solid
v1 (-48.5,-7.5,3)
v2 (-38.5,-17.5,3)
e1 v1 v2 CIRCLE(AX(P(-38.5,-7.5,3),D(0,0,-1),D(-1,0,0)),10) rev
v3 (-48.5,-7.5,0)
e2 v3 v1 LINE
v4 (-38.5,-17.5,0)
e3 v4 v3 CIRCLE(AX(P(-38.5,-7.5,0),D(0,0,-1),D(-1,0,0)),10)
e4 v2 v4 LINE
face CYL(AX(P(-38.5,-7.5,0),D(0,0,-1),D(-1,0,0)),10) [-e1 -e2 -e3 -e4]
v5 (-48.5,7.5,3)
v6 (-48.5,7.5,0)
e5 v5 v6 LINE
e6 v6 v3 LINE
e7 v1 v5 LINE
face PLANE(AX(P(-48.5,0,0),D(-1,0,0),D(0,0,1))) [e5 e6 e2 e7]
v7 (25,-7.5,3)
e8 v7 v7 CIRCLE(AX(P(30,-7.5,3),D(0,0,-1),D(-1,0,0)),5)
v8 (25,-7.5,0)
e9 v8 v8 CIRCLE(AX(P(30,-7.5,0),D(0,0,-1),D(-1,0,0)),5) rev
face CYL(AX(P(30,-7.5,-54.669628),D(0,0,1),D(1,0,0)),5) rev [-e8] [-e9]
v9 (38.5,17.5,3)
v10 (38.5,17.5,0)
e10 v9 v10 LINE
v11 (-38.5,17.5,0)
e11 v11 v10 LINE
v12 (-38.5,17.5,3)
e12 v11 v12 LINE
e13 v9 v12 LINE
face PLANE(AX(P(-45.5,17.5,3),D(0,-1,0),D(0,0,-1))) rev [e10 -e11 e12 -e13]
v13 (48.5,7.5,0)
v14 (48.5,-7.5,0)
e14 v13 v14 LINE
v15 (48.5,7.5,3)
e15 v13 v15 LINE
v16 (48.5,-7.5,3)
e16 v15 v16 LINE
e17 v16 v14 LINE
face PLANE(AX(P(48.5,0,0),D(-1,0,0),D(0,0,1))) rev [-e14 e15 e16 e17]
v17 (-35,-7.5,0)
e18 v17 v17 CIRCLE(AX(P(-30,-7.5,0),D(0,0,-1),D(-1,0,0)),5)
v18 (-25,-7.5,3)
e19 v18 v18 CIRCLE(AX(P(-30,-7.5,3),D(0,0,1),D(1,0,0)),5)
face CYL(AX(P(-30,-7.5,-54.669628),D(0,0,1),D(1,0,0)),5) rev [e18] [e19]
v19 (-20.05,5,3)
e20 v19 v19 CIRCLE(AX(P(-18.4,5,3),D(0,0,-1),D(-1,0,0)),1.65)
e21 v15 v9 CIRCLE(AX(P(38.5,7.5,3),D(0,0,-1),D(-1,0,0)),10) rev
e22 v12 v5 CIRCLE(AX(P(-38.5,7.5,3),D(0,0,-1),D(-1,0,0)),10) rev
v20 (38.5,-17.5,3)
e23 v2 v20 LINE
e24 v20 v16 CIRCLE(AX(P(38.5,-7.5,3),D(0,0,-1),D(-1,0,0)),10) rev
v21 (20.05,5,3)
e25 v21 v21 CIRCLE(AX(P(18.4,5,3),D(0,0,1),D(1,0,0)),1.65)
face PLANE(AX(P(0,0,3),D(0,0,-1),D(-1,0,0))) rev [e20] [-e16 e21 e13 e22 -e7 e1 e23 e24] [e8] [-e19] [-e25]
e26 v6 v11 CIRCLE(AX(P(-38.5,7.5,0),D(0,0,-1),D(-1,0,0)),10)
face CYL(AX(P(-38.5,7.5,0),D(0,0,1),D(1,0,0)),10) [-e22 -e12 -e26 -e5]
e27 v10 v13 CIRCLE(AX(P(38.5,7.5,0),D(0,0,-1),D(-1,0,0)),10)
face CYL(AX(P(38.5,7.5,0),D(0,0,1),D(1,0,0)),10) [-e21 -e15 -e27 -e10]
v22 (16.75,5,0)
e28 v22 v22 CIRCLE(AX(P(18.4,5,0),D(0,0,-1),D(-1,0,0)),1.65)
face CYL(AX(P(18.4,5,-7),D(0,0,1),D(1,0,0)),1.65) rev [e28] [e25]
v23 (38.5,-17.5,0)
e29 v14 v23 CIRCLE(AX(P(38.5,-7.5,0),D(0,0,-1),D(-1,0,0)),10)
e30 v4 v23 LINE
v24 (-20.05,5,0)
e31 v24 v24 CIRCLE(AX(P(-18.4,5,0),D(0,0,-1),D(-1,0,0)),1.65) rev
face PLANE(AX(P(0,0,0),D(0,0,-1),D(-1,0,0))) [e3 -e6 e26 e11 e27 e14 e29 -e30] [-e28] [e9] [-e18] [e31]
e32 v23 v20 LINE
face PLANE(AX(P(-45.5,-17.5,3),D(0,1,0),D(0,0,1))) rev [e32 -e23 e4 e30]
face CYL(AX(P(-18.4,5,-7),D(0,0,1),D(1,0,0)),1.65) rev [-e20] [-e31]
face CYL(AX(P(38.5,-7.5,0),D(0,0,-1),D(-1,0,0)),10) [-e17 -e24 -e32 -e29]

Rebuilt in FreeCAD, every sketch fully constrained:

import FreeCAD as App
import Part
import Sketcher

V = App.Vector


def edges_at(feature, points):
    """Names of the edges that pass closest to the given points."""
    edges = feature.Shape.Edges
    near = lambda p: min(range(len(edges)), key=lambda i: edges[i].distToShape(Part.Vertex(*p))[0])
    return sorted({f"Edge{near(p) + 1}" for p in points})

doc = App.newDocument("Part")
body = doc.addObject("PartDesign::Body", "Body")

sketch1 = body.newObject("Sketcher::SketchObject", "Sketch")
sketch1.AttachmentSupport = (doc.getObject("XY_Plane"), [""])
sketch1.MapMode = "FlatFace"
sketch1.addGeometry(Part.LineSegment(V(-46, 18, 0), V(-46, -18, 0)), False)
sketch1.addGeometry(Part.LineSegment(V(-46, -18, 0), V(46, -18, 0)), False)
sketch1.addGeometry(Part.LineSegment(V(46, -18, 0), V(46, 18, 0)), False)
sketch1.addGeometry(Part.LineSegment(V(46, 18, 0), V(-46, 18, 0)), False)
sketch1.addConstraint(Sketcher.Constraint("Coincident", 0, 2, 1, 1))
sketch1.addConstraint(Sketcher.Constraint("Coincident", 1, 2, 2, 1))
sketch1.addConstraint(Sketcher.Constraint("Coincident", 2, 2, 3, 1))
sketch1.addConstraint(Sketcher.Constraint("Coincident", 3, 2, 0, 1))
sketch1.addConstraint(Sketcher.Constraint("Vertical", 0))
sketch1.addConstraint(Sketcher.Constraint("Horizontal", 1))
sketch1.addConstraint(Sketcher.Constraint("Vertical", 2))
sketch1.addConstraint(Sketcher.Constraint("Horizontal", 3))
sketch1.addConstraint(Sketcher.Constraint("Symmetric", 0, 2, 2, 2, -1, 1))
sketch1.addConstraint(Sketcher.Constraint("DistanceX", 1, 1, 1, 2, 91.0))
sketch1.addConstraint(Sketcher.Constraint("DistanceY", 0, 2, 0, 1, 35.0))
pad1 = body.newObject("PartDesign::Pad", "Pad")
pad1.Profile = sketch1
pad1.Length = 3

sketch2 = body.newObject("Sketcher::SketchObject", "Sketch001")
sketch2.AttachmentSupport = (doc.getObject("XY_Plane"), [""])
sketch2.MapMode = "FlatFace"
sketch2.addGeometry(Part.Circle(V(22.5, 5, 0), V(0, 0, 1), 1.2), False)
sketch2.addGeometry(Part.Circle(V(-22.5, 5, 0), V(0, 0, 1), 1.2), False)
sketch2.addConstraint(Sketcher.Constraint("Equal", 0, 1))
sketch2.addConstraint(Sketcher.Constraint("Symmetric", 0, 3, 1, 3, -2))
sketch2.addConstraint(Sketcher.Constraint("Diameter", 0, 2.5))
sketch2.addConstraint(Sketcher.Constraint("DistanceY", -1, 1, 0, 3, 5.0))
sketch2.addConstraint(Sketcher.Constraint("DistanceX", 1, 3, 0, 3, 45.0))
pocket1 = body.newObject("PartDesign::Pocket", "Pocket")
pocket1.Profile = sketch2
pocket1.Length = 3
pocket1.Reversed = True

sketch3 = body.newObject("Sketcher::SketchObject", "Sketch002")
sketch3.AttachmentSupport = (doc.getObject("XY_Plane"), [""])
sketch3.MapMode = "FlatFace"
sketch3.addGeometry(Part.LineSegment(V(45.5, 17.5, 0), V(45.5, 14.5, 0)), False)
sketch3.addGeometry(Part.LineSegment(V(45.5, 14.5, 0), V(-45.5, 14.5, 0)), False)
sketch3.addGeometry(Part.LineSegment(V(-45.5, 14.5, 0), V(-45.5, 17.5, 0)), False)
sketch3.addGeometry(Part.LineSegment(V(-45.5, 17.5, 0), V(45.5, 17.5, 0)), False)
sketch3.addConstraint(Sketcher.Constraint("Coincident", 0, 2, 1, 1))
sketch3.addConstraint(Sketcher.Constraint("Coincident", 1, 2, 2, 1))
sketch3.addConstraint(Sketcher.Constraint("Coincident", 2, 2, 3, 1))
sketch3.addConstraint(Sketcher.Constraint("Coincident", 3, 2, 0, 1))
sketch3.addConstraint(Sketcher.Constraint("Vertical", 0))
sketch3.addConstraint(Sketcher.Constraint("Horizontal", 1))
sketch3.addConstraint(Sketcher.Constraint("Vertical", 2))
sketch3.addConstraint(Sketcher.Constraint("Horizontal", 3))
sketch3.addConstraint(Sketcher.Constraint("DistanceX", 1, 2, 1, 1, 91.0))
sketch3.addConstraint(Sketcher.Constraint("DistanceY", 0, 2, 0, 1, 3.0))
sketch3.addConstraint(Sketcher.Constraint("DistanceX", -1, 1, 0, 2, 45.5))
sketch3.addConstraint(Sketcher.Constraint("DistanceY", -1, 1, 0, 2, 14.5))
pad2 = body.newObject("PartDesign::Pad", "Pad001")
pad2.Profile = sketch3
pad2.Length = 12
pad2.Reversed = True

sketch4 = body.newObject("Sketcher::SketchObject", "Sketch003")
sketch4.AttachmentSupport = (doc.getObject("YZ_Plane"), [""])
sketch4.MapMode = "FlatFace"
sketch4.AttachmentOffset = App.Placement(V(0, 0, 45.5), App.Rotation())
sketch4.addGeometry(Part.LineSegment(V(18, -24, 0), V(18, 3, 0)), False)
sketch4.addGeometry(Part.LineSegment(V(18, 3, 0), V(-18, 3, 0)), False)
sketch4.addGeometry(Part.LineSegment(V(-18, 3, 0), V(-18, -24, 0)), False)
sketch4.addGeometry(Part.LineSegment(V(-18, -24, 0), V(18, -24, 0)), False)
sketch4.addConstraint(Sketcher.Constraint("Coincident", 0, 2, 1, 1))
sketch4.addConstraint(Sketcher.Constraint("Coincident", 1, 2, 2, 1))
sketch4.addConstraint(Sketcher.Constraint("Coincident", 2, 2, 3, 1))
sketch4.addConstraint(Sketcher.Constraint("Coincident", 3, 2, 0, 1))
sketch4.addConstraint(Sketcher.Constraint("Vertical", 0))
sketch4.addConstraint(Sketcher.Constraint("Horizontal", 1))
sketch4.addConstraint(Sketcher.Constraint("Vertical", 2))
sketch4.addConstraint(Sketcher.Constraint("Horizontal", 3))
sketch4.addConstraint(Sketcher.Constraint("DistanceX", 1, 2, 1, 1, 35.0))
sketch4.addConstraint(Sketcher.Constraint("DistanceY", 0, 1, 0, 2, 27.0))
sketch4.addConstraint(Sketcher.Constraint("DistanceY", -1, 1, 0, 2, 3.0))
sketch4.addConstraint(Sketcher.Constraint("DistanceX", -1, 1, 0, 2, 17.5))
pad3 = body.newObject("PartDesign::Pad", "Pad002")
pad3.Profile = sketch4
pad3.Length = 3

sketch5 = body.newObject("Sketcher::SketchObject", "Sketch004")
sketch5.AttachmentSupport = (doc.getObject("YZ_Plane"), [""])
sketch5.MapMode = "FlatFace"
sketch5.AttachmentOffset = App.Placement(V(0, 0, 45.5), App.Rotation())
sketch5.addGeometry(Part.Circle(V(9.5, -20, 0), V(0, 0, 1), 1.2), False)
sketch5.addGeometry(Part.Circle(V(-15.5, -20, 0), V(0, 0, 1), 1.2), False)
sketch5.addConstraint(Sketcher.Constraint("Equal", 0, 1))
sketch5.addConstraint(Sketcher.Constraint("Horizontal", 0, 3, 1, 3))
sketch5.addConstraint(Sketcher.Constraint("Diameter", 0, 2.5))
sketch5.addConstraint(Sketcher.Constraint("DistanceY", 0, 3, -1, 1, 20.0))
sketch5.addConstraint(Sketcher.Constraint("DistanceX", 1, 3, 0, 3, 25.0))
sketch5.addConstraint(Sketcher.Constraint("DistanceX", -1, 1, 0, 3, 9.5))
pocket2 = body.newObject("PartDesign::Pocket", "Pocket001")
pocket2.Profile = sketch5
pocket2.Length = 3
pocket2.Reversed = True

sketch6 = body.newObject("Sketcher::SketchObject", "Sketch005")
sketch6.AttachmentSupport = (doc.getObject("YZ_Plane"), [""])
sketch6.MapMode = "FlatFace"
sketch6.AttachmentOffset = App.Placement(V(0, 0, -45.5), App.Rotation())
sketch6.addGeometry(Part.LineSegment(V(18, -24, 0), V(-18, -24, 0)), False)
sketch6.addGeometry(Part.LineSegment(V(-18, -24, 0), V(-18, 3, 0)), False)
sketch6.addGeometry(Part.LineSegment(V(-18, 3, 0), V(18, 3, 0)), False)
sketch6.addGeometry(Part.LineSegment(V(18, 3, 0), V(18, -24, 0)), False)
sketch6.addConstraint(Sketcher.Constraint("Coincident", 0, 2, 1, 1))
sketch6.addConstraint(Sketcher.Constraint("Coincident", 1, 2, 2, 1))
sketch6.addConstraint(Sketcher.Constraint("Coincident", 2, 2, 3, 1))
sketch6.addConstraint(Sketcher.Constraint("Coincident", 3, 2, 0, 1))
sketch6.addConstraint(Sketcher.Constraint("Horizontal", 0))
sketch6.addConstraint(Sketcher.Constraint("Vertical", 1))
sketch6.addConstraint(Sketcher.Constraint("Horizontal", 2))
sketch6.addConstraint(Sketcher.Constraint("Vertical", 3))
sketch6.addConstraint(Sketcher.Constraint("DistanceX", 0, 2, 0, 1, 35.0))
sketch6.addConstraint(Sketcher.Constraint("DistanceY", 1, 1, 1, 2, 27.0))
sketch6.addConstraint(Sketcher.Constraint("DistanceY", 0, 2, -1, 1, 24.0))
sketch6.addConstraint(Sketcher.Constraint("DistanceX", 0, 2, -1, 1, 17.5))
pad4 = body.newObject("PartDesign::Pad", "Pad003")
pad4.Profile = sketch6
pad4.Length = 3
pad4.Reversed = True

sketch7 = body.newObject("Sketcher::SketchObject", "Sketch006")
sketch7.AttachmentSupport = (doc.getObject("YZ_Plane"), [""])
sketch7.MapMode = "FlatFace"
sketch7.AttachmentOffset = App.Placement(V(0, 0, -48.5), App.Rotation())
sketch7.addGeometry(Part.Circle(V(9.5, -20, 0), V(0, 0, 1), 1.2), False)
sketch7.addGeometry(Part.Circle(V(-15.5, -20, 0), V(0, 0, 1), 1.2), False)
sketch7.addConstraint(Sketcher.Constraint("Equal", 0, 1))
sketch7.addConstraint(Sketcher.Constraint("Horizontal", 0, 3, 1, 3))
sketch7.addConstraint(Sketcher.Constraint("Diameter", 0, 2.5))
sketch7.addConstraint(Sketcher.Constraint("DistanceY", 0, 3, -1, 1, 20.0))
sketch7.addConstraint(Sketcher.Constraint("DistanceX", 1, 3, 0, 3, 25.0))
sketch7.addConstraint(Sketcher.Constraint("DistanceX", -1, 1, 0, 3, 9.5))
pocket3 = body.newObject("PartDesign::Pocket", "Pocket002")
pocket3.Profile = sketch7
pocket3.Length = 3
pocket3.Reversed = True

sketch8 = body.newObject("Sketcher::SketchObject", "Sketch007")
sketch8.AttachmentSupport = (doc.getObject("XY_Plane"), [""])
sketch8.MapMode = "FlatFace"
sketch8.addGeometry(Part.LineSegment(V(-97, 68, 0), V(105, 43, 0)), False)
sketch8.addGeometry(Part.LineSegment(V(105, 43, 0), V(88, -96, 0)), False)
sketch8.addGeometry(Part.LineSegment(V(88, -96, 0), V(-114, -72, 0)), False)
sketch8.addGeometry(Part.LineSegment(V(-114, -72, 0), V(-97, 68, 0)), False)
sketch8.addConstraint(Sketcher.Constraint("Coincident", 0, 2, 1, 1))
sketch8.addConstraint(Sketcher.Constraint("Coincident", 1, 2, 2, 1))
sketch8.addConstraint(Sketcher.Constraint("Coincident", 2, 2, 3, 1))
sketch8.addConstraint(Sketcher.Constraint("Coincident", 3, 2, 0, 1))
sketch8.addConstraint(Sketcher.Constraint("Perpendicular", 0, 1))
sketch8.addConstraint(Sketcher.Constraint("Perpendicular", 1, 2))
sketch8.addConstraint(Sketcher.Constraint("Perpendicular", 2, 3))
sketch8.addConstraint(Sketcher.Constraint("Distance", 0, 203.159988))
sketch8.addConstraint(Sketcher.Constraint("DistanceX", -1, 1, 1, 2, 87.58709))
sketch8.addConstraint(Sketcher.Constraint("DistanceY", -1, 1, 3, 2, 67.997211))
sketch8.addConstraint(Sketcher.Constraint("DistanceY", 1, 2, 2, 2, 24.509439))
sketch8.addConstraint(Sketcher.Constraint("DistanceX", 2, 2, 0, 2, 218.629461))
pocket4 = body.newObject("PartDesign::Pocket", "Pocket003")
pocket4.Profile = sketch8
pocket4.Length = 57.669628

sketch9 = body.newObject("Sketcher::SketchObject", "Sketch008")
sketch9.AttachmentSupport = (doc.getObject("XY_Plane"), [""])
sketch9.MapMode = "FlatFace"
sketch9.AttachmentOffset = App.Placement(V(0, 0, 3), App.Rotation())
sketch9.addGeometry(Part.Circle(V(-30, -8, 0), V(0, 0, 1), 5), False)
sketch9.addGeometry(Part.Circle(V(30, -8, 0), V(0, 0, 1), 5), False)
sketch9.addConstraint(Sketcher.Constraint("Equal", 0, 1))
sketch9.addConstraint(Sketcher.Constraint("Symmetric", 0, 3, 1, 3, -2))
sketch9.addConstraint(Sketcher.Constraint("Diameter", 0, 10.0))
sketch9.addConstraint(Sketcher.Constraint("DistanceX", 0, 3, -1, 1, 30.0))
sketch9.addConstraint(Sketcher.Constraint("DistanceY", 0, 3, -1, 1, 7.5))
pocket5 = body.newObject("PartDesign::Pocket", "Pocket004")
pocket5.Profile = sketch9
pocket5.Length = 57.669628
doc.recompute()

fillet = body.newObject("PartDesign::Fillet", "Fillet")
fillet.Base = (pocket5, edges_at(pocket5, [
    (48.5, -17.5, 1.5),
    (-48.5, 17.5, 1.5),
    (-48.5, -17.5, 1.5),
    (48.5, 17.5, 1.5),
]))
fillet.Radius = 10

sketch10 = body.newObject("Sketcher::SketchObject", "Sketch009")
sketch10.AttachmentSupport = (doc.getObject("XY_Plane"), [""])
sketch10.MapMode = "FlatFace"
sketch10.AttachmentOffset = App.Placement(V(0, 0, 3), App.Rotation())
sketch10.addGeometry(Part.Circle(V(18.4, 5, 0), V(0, 0, 1), 1.6), False)
sketch10.addGeometry(Part.Circle(V(-18.4, 5, 0), V(0, 0, 1), 1.6), False)
sketch10.addConstraint(Sketcher.Constraint("Equal", 0, 1))
sketch10.addConstraint(Sketcher.Constraint("Symmetric", 0, 3, 1, 3, -2))
sketch10.addConstraint(Sketcher.Constraint("Diameter", 0, 3.3))
sketch10.addConstraint(Sketcher.Constraint("DistanceY", -1, 1, 0, 3, 5.0))
sketch10.addConstraint(Sketcher.Constraint("DistanceX", -1, 1, 0, 3, 18.4))
pocket6 = body.newObject("PartDesign::Pocket", "Pocket005")
pocket6.Profile = sketch10
pocket6.Length = 10

sketch11 = body.newObject("Sketcher::SketchObject", "Sketch010")
sketch11.AttachmentSupport = (doc.getObject("XY_Plane"), [""])
sketch11.MapMode = "FlatFace"
sketch11.addGeometry(Part.Circle(V(22.5, 5, 0), V(0, 0, 1), 1.2), False)
sketch11.addGeometry(Part.Circle(V(-22.5, 5, 0), V(0, 0, 1), 1.2), False)
sketch11.addConstraint(Sketcher.Constraint("Equal", 0, 1))
sketch11.addConstraint(Sketcher.Constraint("Symmetric", 0, 3, 1, 3, -2))
sketch11.addConstraint(Sketcher.Constraint("Diameter", 0, 2.5))
sketch11.addConstraint(Sketcher.Constraint("DistanceY", -1, 1, 0, 3, 5.0))
sketch11.addConstraint(Sketcher.Constraint("DistanceX", 1, 3, 0, 3, 45.0))
pad5 = body.newObject("PartDesign::Pad", "Pad004")
pad5.Profile = sketch11
pad5.Length = 3

doc.recompute()
